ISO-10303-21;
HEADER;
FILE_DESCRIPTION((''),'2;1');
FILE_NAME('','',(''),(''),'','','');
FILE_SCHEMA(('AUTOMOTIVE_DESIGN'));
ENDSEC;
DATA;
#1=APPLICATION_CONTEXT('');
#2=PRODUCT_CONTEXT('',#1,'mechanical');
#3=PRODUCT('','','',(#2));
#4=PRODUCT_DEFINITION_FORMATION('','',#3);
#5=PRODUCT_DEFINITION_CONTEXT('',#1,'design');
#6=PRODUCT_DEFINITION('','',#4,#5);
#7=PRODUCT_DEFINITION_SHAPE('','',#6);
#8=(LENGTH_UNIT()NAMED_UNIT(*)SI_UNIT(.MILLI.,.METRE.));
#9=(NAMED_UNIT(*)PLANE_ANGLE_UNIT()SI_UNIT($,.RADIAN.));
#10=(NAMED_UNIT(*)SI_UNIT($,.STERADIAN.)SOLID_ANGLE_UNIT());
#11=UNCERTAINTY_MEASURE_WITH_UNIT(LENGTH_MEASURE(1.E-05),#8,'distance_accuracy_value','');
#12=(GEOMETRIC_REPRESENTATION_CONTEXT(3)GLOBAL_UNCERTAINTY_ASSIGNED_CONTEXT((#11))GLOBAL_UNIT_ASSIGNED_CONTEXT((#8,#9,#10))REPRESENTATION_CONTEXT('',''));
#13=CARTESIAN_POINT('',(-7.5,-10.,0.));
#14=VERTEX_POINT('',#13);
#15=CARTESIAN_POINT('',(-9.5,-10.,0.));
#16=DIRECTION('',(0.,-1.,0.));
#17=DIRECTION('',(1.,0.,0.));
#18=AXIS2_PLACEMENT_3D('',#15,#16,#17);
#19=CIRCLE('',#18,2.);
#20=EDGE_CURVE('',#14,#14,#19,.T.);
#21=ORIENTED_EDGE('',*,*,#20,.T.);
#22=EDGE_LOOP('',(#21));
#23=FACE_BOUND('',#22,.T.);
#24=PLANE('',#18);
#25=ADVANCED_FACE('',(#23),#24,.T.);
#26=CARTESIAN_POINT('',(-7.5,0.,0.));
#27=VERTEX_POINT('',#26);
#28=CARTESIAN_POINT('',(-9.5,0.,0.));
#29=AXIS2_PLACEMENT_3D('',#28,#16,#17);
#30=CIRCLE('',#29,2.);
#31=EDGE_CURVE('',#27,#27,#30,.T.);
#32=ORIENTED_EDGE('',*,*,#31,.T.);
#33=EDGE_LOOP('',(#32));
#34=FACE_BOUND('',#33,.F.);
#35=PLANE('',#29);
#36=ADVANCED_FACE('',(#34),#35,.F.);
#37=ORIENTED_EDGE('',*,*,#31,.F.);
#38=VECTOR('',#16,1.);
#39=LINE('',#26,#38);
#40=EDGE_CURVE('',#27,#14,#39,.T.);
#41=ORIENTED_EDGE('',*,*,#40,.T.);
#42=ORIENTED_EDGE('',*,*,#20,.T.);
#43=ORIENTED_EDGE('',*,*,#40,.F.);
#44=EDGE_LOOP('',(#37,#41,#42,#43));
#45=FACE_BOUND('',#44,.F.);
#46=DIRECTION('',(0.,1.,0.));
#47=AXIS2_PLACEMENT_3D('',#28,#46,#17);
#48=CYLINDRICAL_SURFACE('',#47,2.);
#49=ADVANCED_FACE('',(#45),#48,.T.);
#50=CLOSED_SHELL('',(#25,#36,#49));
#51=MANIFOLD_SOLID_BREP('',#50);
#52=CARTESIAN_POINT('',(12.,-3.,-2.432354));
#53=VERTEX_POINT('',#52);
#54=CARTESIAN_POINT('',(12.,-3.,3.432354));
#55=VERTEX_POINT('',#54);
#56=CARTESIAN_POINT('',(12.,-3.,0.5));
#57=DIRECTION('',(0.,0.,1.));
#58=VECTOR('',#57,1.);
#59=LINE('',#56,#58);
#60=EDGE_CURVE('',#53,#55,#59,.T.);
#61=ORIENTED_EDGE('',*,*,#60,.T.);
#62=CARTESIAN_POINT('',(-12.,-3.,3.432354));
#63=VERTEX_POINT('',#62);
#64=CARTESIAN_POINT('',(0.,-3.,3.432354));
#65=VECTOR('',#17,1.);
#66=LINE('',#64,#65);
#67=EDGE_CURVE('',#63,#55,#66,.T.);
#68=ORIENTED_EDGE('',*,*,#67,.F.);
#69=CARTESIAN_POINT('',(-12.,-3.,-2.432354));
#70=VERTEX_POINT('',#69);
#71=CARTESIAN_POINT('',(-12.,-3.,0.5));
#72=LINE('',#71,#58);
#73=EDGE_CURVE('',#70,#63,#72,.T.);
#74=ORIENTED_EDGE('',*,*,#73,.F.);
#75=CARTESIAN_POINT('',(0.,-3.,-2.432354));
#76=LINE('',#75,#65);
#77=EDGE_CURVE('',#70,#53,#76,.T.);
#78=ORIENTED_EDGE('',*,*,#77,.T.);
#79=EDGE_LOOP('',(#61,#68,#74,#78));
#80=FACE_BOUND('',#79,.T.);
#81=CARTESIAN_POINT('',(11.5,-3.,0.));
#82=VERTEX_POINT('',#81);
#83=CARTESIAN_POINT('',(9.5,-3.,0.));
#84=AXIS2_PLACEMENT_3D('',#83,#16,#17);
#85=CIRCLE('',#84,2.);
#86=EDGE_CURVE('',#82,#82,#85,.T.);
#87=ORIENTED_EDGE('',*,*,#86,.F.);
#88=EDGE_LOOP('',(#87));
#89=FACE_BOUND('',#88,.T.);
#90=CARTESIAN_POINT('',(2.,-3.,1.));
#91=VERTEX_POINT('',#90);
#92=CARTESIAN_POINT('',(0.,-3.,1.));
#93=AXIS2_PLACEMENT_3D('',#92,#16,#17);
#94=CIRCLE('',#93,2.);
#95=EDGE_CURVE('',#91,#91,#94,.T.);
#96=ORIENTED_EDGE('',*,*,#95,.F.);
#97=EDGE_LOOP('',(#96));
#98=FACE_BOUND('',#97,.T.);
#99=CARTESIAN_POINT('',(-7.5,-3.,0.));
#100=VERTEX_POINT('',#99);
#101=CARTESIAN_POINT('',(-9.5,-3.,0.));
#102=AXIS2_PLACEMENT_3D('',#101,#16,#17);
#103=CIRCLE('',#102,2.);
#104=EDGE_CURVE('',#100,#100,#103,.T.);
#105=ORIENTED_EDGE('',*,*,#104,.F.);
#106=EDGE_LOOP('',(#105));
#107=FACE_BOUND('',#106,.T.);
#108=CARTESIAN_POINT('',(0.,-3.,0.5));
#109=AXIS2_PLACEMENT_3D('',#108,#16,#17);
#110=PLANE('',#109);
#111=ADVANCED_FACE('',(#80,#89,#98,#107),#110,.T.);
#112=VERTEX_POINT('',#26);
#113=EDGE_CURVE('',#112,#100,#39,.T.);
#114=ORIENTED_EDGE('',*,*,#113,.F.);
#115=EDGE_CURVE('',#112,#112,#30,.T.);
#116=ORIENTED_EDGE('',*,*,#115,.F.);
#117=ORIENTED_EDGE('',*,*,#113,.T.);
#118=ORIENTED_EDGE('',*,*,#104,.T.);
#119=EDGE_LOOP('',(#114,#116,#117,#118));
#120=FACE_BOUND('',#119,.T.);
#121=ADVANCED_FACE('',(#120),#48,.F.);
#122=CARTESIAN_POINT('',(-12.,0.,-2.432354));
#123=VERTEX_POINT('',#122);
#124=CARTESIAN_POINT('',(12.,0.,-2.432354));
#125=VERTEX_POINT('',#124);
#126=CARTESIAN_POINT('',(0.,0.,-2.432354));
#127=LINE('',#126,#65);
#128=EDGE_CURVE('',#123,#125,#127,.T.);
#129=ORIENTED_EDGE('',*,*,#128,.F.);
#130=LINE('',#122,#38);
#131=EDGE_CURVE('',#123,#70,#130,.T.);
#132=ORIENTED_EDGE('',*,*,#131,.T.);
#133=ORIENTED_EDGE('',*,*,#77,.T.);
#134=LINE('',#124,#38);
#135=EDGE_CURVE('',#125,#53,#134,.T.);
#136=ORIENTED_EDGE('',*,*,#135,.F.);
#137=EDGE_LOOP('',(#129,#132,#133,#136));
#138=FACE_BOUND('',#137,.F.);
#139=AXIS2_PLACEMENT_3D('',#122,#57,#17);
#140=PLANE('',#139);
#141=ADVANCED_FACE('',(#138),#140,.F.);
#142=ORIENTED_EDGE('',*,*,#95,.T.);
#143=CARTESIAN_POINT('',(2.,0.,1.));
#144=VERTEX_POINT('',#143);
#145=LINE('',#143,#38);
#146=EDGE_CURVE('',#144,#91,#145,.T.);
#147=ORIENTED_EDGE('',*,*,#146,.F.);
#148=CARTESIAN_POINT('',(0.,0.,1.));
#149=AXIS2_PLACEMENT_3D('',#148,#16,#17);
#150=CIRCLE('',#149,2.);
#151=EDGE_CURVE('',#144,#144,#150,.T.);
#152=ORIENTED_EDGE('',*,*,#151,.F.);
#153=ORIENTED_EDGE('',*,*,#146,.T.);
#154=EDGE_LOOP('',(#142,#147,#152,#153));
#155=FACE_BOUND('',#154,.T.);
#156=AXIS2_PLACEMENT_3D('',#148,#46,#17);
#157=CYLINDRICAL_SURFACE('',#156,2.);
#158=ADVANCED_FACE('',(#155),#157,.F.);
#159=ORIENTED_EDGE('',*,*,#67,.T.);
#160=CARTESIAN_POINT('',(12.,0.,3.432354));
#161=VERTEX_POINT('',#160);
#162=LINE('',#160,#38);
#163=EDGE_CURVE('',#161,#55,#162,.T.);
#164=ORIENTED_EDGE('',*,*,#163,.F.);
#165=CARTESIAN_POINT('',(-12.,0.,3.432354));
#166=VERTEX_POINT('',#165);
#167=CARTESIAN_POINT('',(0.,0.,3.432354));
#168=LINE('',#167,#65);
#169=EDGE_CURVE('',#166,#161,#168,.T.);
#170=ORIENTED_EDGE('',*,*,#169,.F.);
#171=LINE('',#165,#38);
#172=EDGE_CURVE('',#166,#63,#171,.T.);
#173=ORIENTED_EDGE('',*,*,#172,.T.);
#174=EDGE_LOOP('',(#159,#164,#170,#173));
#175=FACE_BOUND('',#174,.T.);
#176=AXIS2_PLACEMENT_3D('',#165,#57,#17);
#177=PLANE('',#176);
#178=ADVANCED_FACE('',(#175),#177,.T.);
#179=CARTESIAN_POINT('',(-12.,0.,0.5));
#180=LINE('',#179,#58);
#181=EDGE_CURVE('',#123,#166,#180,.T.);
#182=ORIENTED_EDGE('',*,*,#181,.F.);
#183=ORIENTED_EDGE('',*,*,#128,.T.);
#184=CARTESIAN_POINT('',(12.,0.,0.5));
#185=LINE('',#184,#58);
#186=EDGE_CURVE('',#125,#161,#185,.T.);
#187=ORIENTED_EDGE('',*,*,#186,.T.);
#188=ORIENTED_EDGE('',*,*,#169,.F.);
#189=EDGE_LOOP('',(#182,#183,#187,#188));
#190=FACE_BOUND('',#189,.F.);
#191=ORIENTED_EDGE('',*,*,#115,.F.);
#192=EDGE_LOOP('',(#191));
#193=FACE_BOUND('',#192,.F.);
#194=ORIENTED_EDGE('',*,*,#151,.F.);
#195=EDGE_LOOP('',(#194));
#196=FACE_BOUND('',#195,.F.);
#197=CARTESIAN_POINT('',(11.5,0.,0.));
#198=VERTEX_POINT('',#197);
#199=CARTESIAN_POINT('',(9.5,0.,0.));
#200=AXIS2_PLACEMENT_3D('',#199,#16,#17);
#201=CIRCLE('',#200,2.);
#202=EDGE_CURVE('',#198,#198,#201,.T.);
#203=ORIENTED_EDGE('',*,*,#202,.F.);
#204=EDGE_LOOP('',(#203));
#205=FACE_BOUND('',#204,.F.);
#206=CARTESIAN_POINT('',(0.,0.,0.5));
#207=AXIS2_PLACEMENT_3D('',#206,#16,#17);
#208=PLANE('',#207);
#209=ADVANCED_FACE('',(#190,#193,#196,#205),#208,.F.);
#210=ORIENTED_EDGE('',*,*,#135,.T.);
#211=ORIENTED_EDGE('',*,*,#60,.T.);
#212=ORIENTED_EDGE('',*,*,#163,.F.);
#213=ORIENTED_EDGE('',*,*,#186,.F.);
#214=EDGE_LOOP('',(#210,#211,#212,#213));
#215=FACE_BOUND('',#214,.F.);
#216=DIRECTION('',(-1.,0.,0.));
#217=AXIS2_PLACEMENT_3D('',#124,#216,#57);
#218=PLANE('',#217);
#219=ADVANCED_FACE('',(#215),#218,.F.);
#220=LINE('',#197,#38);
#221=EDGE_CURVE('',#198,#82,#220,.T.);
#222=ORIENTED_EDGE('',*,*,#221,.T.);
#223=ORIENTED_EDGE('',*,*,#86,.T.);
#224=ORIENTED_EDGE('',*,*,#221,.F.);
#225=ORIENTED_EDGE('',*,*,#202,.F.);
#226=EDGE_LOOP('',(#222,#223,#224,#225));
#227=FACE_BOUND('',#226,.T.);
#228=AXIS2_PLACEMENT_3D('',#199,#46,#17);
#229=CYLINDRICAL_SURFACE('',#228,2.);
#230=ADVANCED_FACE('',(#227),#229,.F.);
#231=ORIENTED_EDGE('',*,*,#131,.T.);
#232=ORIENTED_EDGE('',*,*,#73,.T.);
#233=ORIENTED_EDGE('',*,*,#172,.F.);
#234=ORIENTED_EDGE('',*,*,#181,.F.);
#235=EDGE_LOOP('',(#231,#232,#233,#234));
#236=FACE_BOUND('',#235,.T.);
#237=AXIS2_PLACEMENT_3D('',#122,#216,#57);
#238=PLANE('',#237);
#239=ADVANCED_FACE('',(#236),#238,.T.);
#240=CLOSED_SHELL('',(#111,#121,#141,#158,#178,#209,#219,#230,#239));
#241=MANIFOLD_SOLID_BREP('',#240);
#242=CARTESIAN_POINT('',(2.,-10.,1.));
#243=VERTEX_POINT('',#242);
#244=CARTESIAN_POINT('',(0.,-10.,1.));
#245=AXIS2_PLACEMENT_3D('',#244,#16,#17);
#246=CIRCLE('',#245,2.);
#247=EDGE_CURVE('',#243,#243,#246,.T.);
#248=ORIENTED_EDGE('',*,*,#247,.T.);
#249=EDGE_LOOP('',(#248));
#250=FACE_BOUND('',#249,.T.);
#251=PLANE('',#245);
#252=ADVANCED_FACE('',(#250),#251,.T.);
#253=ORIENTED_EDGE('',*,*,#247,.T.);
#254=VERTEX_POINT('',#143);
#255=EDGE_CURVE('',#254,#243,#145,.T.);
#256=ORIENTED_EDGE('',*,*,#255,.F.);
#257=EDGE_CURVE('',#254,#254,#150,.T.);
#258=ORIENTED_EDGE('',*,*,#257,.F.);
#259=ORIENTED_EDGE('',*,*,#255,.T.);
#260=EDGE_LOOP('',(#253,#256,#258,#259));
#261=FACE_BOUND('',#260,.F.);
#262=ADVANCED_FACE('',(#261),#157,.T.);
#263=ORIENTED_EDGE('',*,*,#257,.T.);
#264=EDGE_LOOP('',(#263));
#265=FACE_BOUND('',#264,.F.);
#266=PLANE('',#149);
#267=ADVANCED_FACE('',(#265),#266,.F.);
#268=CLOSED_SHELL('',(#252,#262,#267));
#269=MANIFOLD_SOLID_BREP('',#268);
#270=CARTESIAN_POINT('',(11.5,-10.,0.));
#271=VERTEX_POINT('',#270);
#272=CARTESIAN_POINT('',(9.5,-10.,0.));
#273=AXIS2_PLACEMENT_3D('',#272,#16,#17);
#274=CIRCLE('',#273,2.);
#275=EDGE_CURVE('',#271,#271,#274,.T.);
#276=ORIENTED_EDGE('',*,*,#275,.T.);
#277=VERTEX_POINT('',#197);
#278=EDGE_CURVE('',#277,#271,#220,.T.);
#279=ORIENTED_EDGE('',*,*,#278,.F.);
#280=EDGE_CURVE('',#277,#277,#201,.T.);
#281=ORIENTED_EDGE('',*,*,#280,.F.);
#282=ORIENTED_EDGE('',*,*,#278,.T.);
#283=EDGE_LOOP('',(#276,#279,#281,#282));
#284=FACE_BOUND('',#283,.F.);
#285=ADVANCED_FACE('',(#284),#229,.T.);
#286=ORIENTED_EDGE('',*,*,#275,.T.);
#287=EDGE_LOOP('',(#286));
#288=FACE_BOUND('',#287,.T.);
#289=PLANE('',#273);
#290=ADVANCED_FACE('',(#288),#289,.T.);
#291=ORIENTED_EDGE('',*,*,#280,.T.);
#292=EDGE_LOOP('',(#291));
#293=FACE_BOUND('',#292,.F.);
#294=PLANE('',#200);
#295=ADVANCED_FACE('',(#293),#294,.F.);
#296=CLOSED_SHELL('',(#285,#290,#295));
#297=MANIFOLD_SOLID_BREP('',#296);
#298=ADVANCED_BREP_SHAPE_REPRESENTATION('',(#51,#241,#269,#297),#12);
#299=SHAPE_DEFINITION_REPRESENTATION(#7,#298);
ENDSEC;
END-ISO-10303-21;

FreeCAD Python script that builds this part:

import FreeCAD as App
import Part
import Sketcher


def add_polygon(sketch, points):
    """Adds a closed chain of lines whose ends are joined by coincident constraints."""
    first, n = sketch.GeometryCount, len(points)
    for a, b in zip(points, points[1:] + points[:1]):
        sketch.addGeometry(Part.LineSegment(App.Vector(*a, 0), App.Vector(*b, 0)), False)
    for i in range(n):
        sketch.addConstraint(Sketcher.Constraint("Coincident", first + i, 2, first + (i + 1) % n, 1))

doc = App.newDocument("Part")
body = doc.addObject("PartDesign::Body", "Body")
body.AllowCompound = True

sketch1 = body.newObject("Sketcher::SketchObject", "Sketch")
sketch1.AttachmentSupport = (doc.getObject("XZ_Plane"), [""])
sketch1.MapMode = "FlatFace"
sketch1.addGeometry([
    Part.Circle(App.Vector(-9.5, 0, 0), App.Vector(0, 0, 1), 2),
    Part.Circle(App.Vector(0, 1, 0), App.Vector(0, 0, 1), 2),
    Part.Circle(App.Vector(9.5, 0, 0), App.Vector(0, 0, 1), 2),
], False)
sketch1.addConstraint([
    Sketcher.Constraint("Equal", 0, 1),
    Sketcher.Constraint("Equal", 1, 2),
    Sketcher.Constraint("Symmetric", 0, 3, 2, 3, -1, 1),
    Sketcher.Constraint("PointOnObject", 0, 3, -1),
    Sketcher.Constraint("PointOnObject", 1, 3, -2),
    Sketcher.Constraint("Diameter", 0, 4.0),
    Sketcher.Constraint("DistanceY", -1, 1, 1, 3, 1.0),
    Sketcher.Constraint("DistanceX", 0, 3, 2, 3, 19.0),
])
pad1 = body.newObject("PartDesign::Pad", "Pad")
pad1.Profile = sketch1
pad1.Length = 10
body2 = doc.addObject("PartDesign::Body", "Body001")

sketch2 = body2.newObject("Sketcher::SketchObject", "Sketch001")
sketch2.AttachmentSupport = (doc.getObject("XZ_Plane001"), [""])
sketch2.MapMode = "FlatFace"
add_polygon(sketch2, [(-12, 3.4), (-12, -2.4), (12, -2.4), (12, 3.4)])
sketch2.addGeometry(Part.Circle(App.Vector(-9.5, 0, 0), App.Vector(0, 0, 1), 2), False)
sketch2.addGeometry(Part.Circle(App.Vector(9.5, 0, 0), App.Vector(0, 0, 1), 2), False)
sketch2.addGeometry(Part.Circle(App.Vector(0, 1, 0), App.Vector(0, 0, 1), 2), False)
sketch2.addConstraint([
    Sketcher.Constraint("Vertical", 0),
    Sketcher.Constraint("Horizontal", 1),
    Sketcher.Constraint("Vertical", 2),
    Sketcher.Constraint("Horizontal", 3),
    Sketcher.Constraint("Equal", 4, 5),
    Sketcher.Constraint("Equal", 5, 6),
    Sketcher.Constraint("Symmetric", 4, 3, 5, 3, -1, 1),
    Sketcher.Constraint("PointOnObject", 4, 3, -1),
    Sketcher.Constraint("PointOnObject", 6, 3, -2),
    Sketcher.Constraint("Diameter", 4, 4.0),
    Sketcher.Constraint("DistanceX", 1, 1, 1, 2, 24.0),
    Sketcher.Constraint("DistanceY", -1, 1, 6, 3, 1.0),
    Sketcher.Constraint("DistanceX", 0, 2, -1, 1, 12.0),
    Sketcher.Constraint("DistanceX", 4, 3, 5, 3, 19.0),
    Sketcher.Constraint("DistanceY", 0, 2, 0, 1, 5.864708),
    Sketcher.Constraint("DistanceY", 0, 2, -1, 1, 2.432354),
])
pad2 = body2.newObject("PartDesign::Pad", "Pad001")
pad2.Profile = sketch2
pad2.Length = 3

doc.recompute()
